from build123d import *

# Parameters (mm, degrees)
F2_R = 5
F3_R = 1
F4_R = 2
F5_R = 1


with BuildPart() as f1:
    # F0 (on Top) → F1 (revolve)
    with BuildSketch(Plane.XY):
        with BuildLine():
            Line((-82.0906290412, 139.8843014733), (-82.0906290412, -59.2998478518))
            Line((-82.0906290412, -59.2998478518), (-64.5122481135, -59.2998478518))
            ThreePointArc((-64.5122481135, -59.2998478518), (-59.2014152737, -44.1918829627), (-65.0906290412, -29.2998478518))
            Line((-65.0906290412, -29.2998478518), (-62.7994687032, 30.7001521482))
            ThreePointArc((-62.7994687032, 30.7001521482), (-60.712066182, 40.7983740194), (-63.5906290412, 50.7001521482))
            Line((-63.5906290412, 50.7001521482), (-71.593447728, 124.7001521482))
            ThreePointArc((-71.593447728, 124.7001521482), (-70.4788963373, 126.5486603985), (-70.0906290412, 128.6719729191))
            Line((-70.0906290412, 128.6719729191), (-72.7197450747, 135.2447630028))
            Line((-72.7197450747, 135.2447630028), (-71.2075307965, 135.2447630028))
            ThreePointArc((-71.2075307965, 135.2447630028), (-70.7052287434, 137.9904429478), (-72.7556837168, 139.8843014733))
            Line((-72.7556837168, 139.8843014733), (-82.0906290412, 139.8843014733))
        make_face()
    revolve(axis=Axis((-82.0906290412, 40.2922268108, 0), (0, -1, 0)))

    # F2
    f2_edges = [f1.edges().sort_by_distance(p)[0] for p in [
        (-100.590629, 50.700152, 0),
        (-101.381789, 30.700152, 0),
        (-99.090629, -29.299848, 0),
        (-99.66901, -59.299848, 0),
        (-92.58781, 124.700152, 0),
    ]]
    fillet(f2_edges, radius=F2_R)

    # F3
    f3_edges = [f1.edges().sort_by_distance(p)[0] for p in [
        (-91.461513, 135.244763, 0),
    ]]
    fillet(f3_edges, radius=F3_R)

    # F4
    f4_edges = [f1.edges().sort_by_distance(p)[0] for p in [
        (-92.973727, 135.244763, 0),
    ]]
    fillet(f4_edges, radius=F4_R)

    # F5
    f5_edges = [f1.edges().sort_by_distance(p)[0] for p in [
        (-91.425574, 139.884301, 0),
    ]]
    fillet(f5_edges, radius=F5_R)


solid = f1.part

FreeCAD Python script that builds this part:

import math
import FreeCAD as App
import Part
import Sketcher


def edges_at(feature, points):
    """Names of the edges that pass closest to the given points."""
    edges = feature.Shape.Edges
    near = lambda p: min(range(len(edges)), key=lambda i: edges[i].distToShape(Part.Vertex(*p))[0])
    return sorted({f"Edge{near(p) + 1}" for p in points})

doc = App.newDocument("Part")
body = doc.addObject("PartDesign::Body", "Body")

# Sketch on XY plane
sketch1 = doc.addObject("Sketcher::SketchObject", "Sketch")
body.addObject(sketch1)
sketch1.AttachmentSupport = (doc.XY_Plane, [""])
sketch1.MapMode = "FlatFace"
sketch1.addGeometry([
    Part.LineSegment(App.Vector(-82.1, 139.9, 0), App.Vector(-82.1, -59.3, 0)),  # 0
    Part.LineSegment(App.Vector(-82.1, -59.3, 0), App.Vector(-64.5, -59.3, 0)),  # 1
    Part.ArcOfCircle(Part.Circle(App.Vector(-82.1, -44.6, 0), App.Vector(0, 0, 1), 22.9), math.radians(-40), math.radians(42)),  # 2
    Part.LineSegment(App.Vector(-65.1, -29.3, 0), App.Vector(-62.8, 30.7, 0)),  # 3
    Part.ArcOfCircle(Part.Circle(App.Vector(-82.1, 40, 0), App.Vector(0, 0, 1), 21.4), math.radians(-26), math.radians(30)),  # 4
    Part.LineSegment(App.Vector(-63.6, 50.7, 0), App.Vector(-71.6, 124.7, 0)),  # 5
    Part.ArcOfCircle(Part.Circle(App.Vector(-76.1, 128.7, 0), App.Vector(0, 0, 1), 6), math.radians(-41), math.radians(0)),  # 6
    Part.LineSegment(App.Vector(-70.1, 128.7, 0), App.Vector(-72.7, 135.2, 0)),  # 7
    Part.LineSegment(App.Vector(-72.7, 135.2, 0), App.Vector(-71.2, 135.2, 0)),  # 8
    Part.ArcOfCircle(Part.Circle(App.Vector(-73.5, 137.1, 0), App.Vector(0, 0, 1), 2.9), math.radians(-39), math.radians(76)),  # 9
    Part.LineSegment(App.Vector(-72.8, 139.9, 0), App.Vector(-82.1, 139.9, 0)),  # 10
], False)
sketch1.addGeometry(Part.LineSegment(App.Vector(-82.1, 139.9, 0), App.Vector(-82.1, -59.3, 0)), True)  # axis
sketch1.addConstraint([
    Sketcher.Constraint("Coincident", 0, 2, 1, 1),
    Sketcher.Constraint("Coincident", 1, 2, 2, 1),
    Sketcher.Constraint("Coincident", 2, 2, 3, 1),
    Sketcher.Constraint("Coincident", 3, 2, 4, 1),
    Sketcher.Constraint("Coincident", 4, 2, 5, 1),
    Sketcher.Constraint("Coincident", 5, 2, 6, 1),
    Sketcher.Constraint("Coincident", 6, 2, 7, 1),
    Sketcher.Constraint("Coincident", 7, 2, 8, 1),
    Sketcher.Constraint("Coincident", 8, 2, 9, 1),
    Sketcher.Constraint("Coincident", 9, 2, 10, 1),
    Sketcher.Constraint("Coincident", 10, 2, 0, 1),
    Sketcher.Constraint("Vertical", 0),
    Sketcher.Constraint("Horizontal", 1),
    Sketcher.Constraint("Horizontal", 8),
    Sketcher.Constraint("Horizontal", 10),
    Sketcher.Constraint("Vertical", 11),
    Sketcher.Constraint("Coincident", 11, 1, 10, 2),
    Sketcher.Constraint("Horizontal", 1, 2, 11, 2),
    Sketcher.Constraint("Vertical", 2, 3, 4, 3),
    Sketcher.Constraint("Vertical", 4, 3, 0, 2),
    Sketcher.Constraint("Radius", 6, 6.0),
    Sketcher.Constraint("DistanceX", 4, 3, 6, 3, 6.0),
    Sketcher.Constraint("DistanceX", 2, 3, 2, 2, 17.0),
    Sketcher.Constraint("DistanceY", 1, 2, 2, 2, 30.0),
    Sketcher.Constraint("DistanceY", 2, 2, 3, 2, 60.0),
    Sketcher.Constraint("DistanceY", 3, 2, 4, 2, 20.0),
    Sketcher.Constraint("DistanceY", 4, 2, 5, 2, 74.0),
    Sketcher.Constraint("DistanceX", 4, 3, 4, 2, 18.5),
    Sketcher.Constraint("Radius", 2, 22.893467),
    Sketcher.Constraint("Radius", 4, 21.395283),
    Sketcher.Constraint("Radius", 9, 2.895093),
    Sketcher.Constraint("DistanceY", 0, 2, 0, 1, 199.184149),
    Sketcher.Constraint("DistanceY", -1, 1, 9, 2, 139.884301),
    Sketcher.Constraint("DistanceX", 8, 2, 6, 2, 1.116902),
    Sketcher.Constraint("Distance", 5, 74.431479),
    Sketcher.Constraint("Distance", 7, 7.079112),
    Sketcher.Constraint("DistanceX", 8, 1, 8, 2, 1.512214),
    Sketcher.Constraint("DistanceX", 10, 2, 10, 1, 9.334945),
    Sketcher.Constraint("DistanceX", 2, 3, -1, 1, 82.090629),
    Sketcher.Constraint("DistanceY", -1, 1, 9, 3, 137.07406),
])
revolution = doc.addObject("PartDesign::Revolution", "Revolution")
body.addObject(revolution)
revolution.Profile = sketch1
revolution.ReferenceAxis = (sketch1, ["Axis0"])
revolution.Angle = 360
doc.recompute()

fillet = doc.addObject("PartDesign::Fillet", "Fillet")
body.addObject(fillet)
fillet.Base = (revolution, edges_at(revolution, [
    (-100.591, 50.7, 0),
    (-101.382, 30.7, 0),
    (-99.091, -29.3, 0),
    (-99.669, -59.3, 0),
    (-92.588, 124.7, 0),
]))
fillet.Radius = 5
doc.recompute()

fillet2 = doc.addObject("PartDesign::Fillet", "Fillet001")
body.addObject(fillet2)
fillet2.Base = (fillet, edges_at(fillet, [(-91.462, 135.245, 0)]))
fillet2.Radius = 1
doc.recompute()

fillet3 = doc.addObject("PartDesign::Fillet", "Fillet002")
body.addObject(fillet3)
fillet3.Base = (fillet2, edges_at(fillet2, [(-92.974, 135.245, 0)]))
fillet3.Radius = 2
doc.recompute()

fillet4 = doc.addObject("PartDesign::Fillet", "Fillet003")
body.addObject(fillet4)
fillet4.Base = (fillet3, edges_at(fillet3, [(-91.426, 139.884, 0)]))
fillet4.Radius = 1

doc.recompute()
